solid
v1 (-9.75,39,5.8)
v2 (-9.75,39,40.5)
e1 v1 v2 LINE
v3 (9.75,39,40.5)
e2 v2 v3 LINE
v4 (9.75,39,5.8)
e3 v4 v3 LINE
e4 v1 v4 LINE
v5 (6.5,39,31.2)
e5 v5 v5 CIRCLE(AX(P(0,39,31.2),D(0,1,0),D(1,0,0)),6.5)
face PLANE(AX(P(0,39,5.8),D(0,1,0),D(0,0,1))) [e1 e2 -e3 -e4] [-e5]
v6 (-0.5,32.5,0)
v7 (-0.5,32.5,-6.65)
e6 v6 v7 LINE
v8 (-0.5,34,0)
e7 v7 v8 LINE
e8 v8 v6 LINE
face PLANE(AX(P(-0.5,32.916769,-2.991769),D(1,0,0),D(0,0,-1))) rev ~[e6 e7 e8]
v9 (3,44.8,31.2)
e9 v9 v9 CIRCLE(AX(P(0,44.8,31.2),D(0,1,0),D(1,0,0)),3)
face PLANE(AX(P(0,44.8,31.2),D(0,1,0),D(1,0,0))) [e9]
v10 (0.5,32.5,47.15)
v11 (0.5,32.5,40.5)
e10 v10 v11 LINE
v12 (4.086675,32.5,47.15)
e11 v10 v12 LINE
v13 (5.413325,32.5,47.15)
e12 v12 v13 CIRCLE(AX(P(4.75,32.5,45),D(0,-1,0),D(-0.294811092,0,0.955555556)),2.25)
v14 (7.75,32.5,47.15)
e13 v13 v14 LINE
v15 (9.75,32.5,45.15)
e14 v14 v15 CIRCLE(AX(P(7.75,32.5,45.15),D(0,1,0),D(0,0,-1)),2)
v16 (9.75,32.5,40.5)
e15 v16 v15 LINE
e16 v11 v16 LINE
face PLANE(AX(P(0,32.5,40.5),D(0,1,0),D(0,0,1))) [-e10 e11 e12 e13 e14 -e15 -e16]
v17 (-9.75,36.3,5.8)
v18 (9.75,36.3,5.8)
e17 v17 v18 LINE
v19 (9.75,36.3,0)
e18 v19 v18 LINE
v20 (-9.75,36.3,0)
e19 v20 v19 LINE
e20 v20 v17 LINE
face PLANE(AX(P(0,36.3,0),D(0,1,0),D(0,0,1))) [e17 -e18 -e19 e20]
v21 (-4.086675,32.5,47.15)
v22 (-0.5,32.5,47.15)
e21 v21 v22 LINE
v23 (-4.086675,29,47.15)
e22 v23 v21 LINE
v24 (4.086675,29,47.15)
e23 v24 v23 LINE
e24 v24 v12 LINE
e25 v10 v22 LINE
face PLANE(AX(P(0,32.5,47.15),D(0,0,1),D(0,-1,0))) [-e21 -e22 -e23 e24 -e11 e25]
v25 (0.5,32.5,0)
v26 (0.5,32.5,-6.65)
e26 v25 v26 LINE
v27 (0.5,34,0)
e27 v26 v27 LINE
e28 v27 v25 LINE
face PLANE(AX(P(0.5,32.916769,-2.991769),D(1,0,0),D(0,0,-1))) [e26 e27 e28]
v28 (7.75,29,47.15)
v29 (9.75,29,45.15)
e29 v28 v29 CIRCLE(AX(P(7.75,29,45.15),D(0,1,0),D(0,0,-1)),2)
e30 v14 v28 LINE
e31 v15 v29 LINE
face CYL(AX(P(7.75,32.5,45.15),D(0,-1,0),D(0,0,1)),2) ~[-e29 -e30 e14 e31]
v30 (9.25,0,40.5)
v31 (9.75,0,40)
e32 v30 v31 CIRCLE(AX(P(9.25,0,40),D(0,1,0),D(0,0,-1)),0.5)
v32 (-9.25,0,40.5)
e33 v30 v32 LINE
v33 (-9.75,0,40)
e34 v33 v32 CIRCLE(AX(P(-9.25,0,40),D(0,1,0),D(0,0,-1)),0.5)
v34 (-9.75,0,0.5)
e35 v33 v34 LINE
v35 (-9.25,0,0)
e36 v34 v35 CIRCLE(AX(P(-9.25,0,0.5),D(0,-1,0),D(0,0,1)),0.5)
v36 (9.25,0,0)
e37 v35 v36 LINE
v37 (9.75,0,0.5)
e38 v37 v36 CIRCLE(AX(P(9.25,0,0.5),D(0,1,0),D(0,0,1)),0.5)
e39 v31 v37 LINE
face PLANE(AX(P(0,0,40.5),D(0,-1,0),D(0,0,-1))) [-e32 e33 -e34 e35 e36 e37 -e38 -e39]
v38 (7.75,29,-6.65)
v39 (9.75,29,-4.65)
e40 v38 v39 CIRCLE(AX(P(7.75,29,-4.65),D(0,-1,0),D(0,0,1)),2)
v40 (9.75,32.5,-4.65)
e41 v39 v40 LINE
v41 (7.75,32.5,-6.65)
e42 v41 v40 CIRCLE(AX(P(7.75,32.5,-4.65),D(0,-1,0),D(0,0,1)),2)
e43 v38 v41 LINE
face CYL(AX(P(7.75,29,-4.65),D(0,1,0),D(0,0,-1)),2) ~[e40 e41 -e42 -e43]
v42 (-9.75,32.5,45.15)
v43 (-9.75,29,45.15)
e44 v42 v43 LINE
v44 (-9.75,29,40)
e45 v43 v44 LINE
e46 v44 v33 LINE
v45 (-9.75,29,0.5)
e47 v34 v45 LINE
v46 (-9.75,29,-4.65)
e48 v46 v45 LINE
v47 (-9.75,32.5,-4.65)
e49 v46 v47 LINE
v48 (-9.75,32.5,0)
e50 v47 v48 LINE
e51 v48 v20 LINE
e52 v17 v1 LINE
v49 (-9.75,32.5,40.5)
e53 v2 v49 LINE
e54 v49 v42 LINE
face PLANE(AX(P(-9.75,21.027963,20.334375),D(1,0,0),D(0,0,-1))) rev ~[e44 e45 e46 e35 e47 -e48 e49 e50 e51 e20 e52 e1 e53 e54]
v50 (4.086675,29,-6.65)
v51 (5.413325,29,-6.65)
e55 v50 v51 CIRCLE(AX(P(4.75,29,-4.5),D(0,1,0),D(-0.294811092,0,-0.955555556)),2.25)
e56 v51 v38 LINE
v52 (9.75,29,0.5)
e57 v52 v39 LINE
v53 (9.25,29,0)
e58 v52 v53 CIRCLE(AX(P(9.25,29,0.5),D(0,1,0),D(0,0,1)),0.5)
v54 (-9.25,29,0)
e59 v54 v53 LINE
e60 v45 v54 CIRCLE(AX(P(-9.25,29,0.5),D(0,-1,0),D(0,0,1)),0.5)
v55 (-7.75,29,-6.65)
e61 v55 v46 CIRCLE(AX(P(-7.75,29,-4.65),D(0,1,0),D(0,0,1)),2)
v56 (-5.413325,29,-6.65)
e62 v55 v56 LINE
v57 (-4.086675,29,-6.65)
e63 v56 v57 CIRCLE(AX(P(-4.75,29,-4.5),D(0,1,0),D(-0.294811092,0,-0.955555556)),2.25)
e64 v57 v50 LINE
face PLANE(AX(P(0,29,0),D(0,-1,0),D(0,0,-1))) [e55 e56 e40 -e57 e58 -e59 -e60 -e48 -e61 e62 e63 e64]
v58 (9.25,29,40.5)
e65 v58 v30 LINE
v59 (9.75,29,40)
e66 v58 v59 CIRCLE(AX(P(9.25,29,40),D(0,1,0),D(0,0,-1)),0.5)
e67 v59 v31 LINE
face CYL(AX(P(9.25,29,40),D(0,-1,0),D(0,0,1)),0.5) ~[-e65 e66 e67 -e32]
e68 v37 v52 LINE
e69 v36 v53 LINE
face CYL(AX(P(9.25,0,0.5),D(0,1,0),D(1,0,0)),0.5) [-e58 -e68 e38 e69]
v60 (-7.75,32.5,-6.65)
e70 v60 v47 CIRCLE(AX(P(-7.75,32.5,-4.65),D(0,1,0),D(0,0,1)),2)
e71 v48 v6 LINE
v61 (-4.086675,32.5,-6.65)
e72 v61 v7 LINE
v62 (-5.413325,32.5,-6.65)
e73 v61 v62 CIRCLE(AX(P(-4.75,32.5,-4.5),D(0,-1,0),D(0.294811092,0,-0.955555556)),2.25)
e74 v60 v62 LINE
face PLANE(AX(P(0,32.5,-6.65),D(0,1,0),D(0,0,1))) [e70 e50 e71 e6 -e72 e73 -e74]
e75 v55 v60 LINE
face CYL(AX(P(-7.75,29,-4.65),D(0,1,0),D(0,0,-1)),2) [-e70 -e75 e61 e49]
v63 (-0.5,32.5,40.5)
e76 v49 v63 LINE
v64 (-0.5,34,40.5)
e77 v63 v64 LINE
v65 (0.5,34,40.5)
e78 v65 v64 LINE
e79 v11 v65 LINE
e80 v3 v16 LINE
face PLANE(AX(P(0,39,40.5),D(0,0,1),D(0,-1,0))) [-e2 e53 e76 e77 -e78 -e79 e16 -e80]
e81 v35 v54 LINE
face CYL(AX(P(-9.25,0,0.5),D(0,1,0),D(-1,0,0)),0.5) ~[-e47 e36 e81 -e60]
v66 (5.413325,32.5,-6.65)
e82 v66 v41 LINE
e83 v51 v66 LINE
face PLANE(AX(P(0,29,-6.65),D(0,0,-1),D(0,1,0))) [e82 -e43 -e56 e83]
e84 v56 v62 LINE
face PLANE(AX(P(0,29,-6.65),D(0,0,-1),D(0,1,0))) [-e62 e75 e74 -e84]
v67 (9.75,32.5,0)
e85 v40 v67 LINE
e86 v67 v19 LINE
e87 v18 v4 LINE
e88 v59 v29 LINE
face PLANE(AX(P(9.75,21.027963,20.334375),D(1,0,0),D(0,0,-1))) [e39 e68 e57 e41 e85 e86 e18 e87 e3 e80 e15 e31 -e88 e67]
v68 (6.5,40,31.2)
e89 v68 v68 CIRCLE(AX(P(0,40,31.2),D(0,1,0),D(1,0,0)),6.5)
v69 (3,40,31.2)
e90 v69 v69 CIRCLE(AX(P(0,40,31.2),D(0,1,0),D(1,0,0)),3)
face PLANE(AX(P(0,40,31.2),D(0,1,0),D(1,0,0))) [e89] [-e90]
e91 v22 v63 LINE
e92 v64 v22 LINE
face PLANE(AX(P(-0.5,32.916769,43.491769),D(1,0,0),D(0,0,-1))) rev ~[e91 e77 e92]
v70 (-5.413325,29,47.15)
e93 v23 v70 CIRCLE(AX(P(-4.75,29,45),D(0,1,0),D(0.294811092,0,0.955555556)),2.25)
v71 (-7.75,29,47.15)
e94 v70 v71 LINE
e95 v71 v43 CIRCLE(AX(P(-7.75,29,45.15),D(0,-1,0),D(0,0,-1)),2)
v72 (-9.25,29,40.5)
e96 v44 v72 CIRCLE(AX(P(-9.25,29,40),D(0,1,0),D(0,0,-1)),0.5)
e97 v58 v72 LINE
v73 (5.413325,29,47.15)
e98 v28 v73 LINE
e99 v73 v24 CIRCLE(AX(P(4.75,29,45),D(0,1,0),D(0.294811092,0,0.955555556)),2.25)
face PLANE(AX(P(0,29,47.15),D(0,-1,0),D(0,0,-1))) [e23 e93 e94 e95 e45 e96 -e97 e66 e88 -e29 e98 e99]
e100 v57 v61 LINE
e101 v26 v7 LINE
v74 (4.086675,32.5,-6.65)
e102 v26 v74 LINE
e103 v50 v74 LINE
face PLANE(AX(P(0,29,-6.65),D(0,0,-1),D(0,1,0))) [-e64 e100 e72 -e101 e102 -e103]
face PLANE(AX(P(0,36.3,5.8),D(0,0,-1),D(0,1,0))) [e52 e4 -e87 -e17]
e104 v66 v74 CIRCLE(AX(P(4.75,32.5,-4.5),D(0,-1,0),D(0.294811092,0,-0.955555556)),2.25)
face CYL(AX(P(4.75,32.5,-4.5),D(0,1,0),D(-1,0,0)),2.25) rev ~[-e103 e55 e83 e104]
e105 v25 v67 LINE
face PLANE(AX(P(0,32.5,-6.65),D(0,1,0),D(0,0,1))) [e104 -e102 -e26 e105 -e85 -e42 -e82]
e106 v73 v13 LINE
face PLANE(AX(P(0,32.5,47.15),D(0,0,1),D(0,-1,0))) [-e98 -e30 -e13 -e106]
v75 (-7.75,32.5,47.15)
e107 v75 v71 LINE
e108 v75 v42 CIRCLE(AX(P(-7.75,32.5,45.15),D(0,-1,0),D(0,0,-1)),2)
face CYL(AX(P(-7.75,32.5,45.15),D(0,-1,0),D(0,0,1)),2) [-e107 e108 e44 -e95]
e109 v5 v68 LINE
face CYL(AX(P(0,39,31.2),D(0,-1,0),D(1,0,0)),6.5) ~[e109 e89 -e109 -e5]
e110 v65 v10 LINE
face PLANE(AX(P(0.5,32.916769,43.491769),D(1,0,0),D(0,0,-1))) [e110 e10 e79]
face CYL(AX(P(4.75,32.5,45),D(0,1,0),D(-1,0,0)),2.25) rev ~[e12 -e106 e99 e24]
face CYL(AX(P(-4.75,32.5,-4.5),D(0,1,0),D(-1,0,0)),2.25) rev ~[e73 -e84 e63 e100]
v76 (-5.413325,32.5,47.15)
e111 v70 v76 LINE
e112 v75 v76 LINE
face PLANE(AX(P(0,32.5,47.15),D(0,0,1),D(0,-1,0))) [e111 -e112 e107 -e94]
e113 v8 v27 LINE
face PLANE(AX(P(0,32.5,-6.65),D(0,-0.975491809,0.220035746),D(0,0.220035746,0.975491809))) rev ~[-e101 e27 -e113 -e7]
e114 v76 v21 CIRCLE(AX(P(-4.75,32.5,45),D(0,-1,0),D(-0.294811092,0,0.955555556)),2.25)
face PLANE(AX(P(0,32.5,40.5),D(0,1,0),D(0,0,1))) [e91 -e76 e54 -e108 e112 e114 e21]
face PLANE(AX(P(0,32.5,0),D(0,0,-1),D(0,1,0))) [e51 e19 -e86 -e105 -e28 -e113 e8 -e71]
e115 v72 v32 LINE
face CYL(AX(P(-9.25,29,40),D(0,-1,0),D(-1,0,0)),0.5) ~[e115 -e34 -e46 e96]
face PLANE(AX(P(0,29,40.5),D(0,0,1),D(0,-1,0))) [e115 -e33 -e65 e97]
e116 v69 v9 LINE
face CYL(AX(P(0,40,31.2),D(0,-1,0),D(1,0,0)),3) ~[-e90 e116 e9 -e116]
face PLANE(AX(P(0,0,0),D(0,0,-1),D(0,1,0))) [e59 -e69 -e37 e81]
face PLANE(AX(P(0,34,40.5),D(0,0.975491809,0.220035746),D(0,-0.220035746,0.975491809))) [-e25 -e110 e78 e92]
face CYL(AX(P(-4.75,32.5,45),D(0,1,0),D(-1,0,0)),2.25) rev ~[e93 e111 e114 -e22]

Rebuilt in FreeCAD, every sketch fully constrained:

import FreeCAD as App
import Part
import Sketcher
from FreeCAD import Vector
Q = App.Units.Quantity


def edges_at(feature, points):
    """Names of the edges that pass closest to the given points."""
    edges = feature.Shape.Edges
    near = lambda p: min(range(len(edges)), key=lambda i: edges[i].distToShape(Part.Vertex(*p))[0])
    return sorted({f"Edge{near(p) + 1}" for p in points})

doc = App.newDocument("Part")
body = doc.addObject("PartDesign::Body", "Body")

# Sketch on YZ plane
sketch1 = doc.addObject("Sketcher::SketchObject", "Sketch")
body.addObject(sketch1)
sketch1.AttachmentSupport = (doc.YZ_Plane, [""])
sketch1.MapMode = "FlatFace"
sketch1.addGeometry([
    Part.LineSegment(Vector(0, 40.5, 0), Vector(0, 0, 0)),  # 0
    Part.LineSegment(Vector(0, 0, 0), Vector(29, 0, 0)),  # 1
    Part.LineSegment(Vector(29, 0, 0), Vector(29, -6.7, 0)),  # 2
    Part.LineSegment(Vector(29, -6.7, 0), Vector(32.5, -6.7, 0)),  # 3
    Part.LineSegment(Vector(32.5, -6.7, 0), Vector(32.5, 0, 0)),  # 4
    Part.LineSegment(Vector(32.5, 0, 0), Vector(36.3, 0, 0)),  # 5
    Part.LineSegment(Vector(36.3, 0, 0), Vector(36.3, 5.8, 0)),  # 6
    Part.LineSegment(Vector(36.3, 5.8, 0), Vector(39, 5.8, 0)),  # 7
    Part.LineSegment(Vector(39, 5.8, 0), Vector(39, 40.5, 0)),  # 8
    Part.LineSegment(Vector(39, 40.5, 0), Vector(32.5, 40.5, 0)),  # 9
    Part.LineSegment(Vector(32.5, 40.5, 0), Vector(32.5, 47.1, 0)),  # 10
    Part.LineSegment(Vector(32.5, 47.1, 0), Vector(29, 47.1, 0)),  # 11
    Part.LineSegment(Vector(29, 47.1, 0), Vector(29, 40.5, 0)),  # 12
    Part.LineSegment(Vector(29, 40.5, 0), Vector(0, 40.5, 0)),  # 13
], False)
sketch1.addConstraint([
    Sketcher.Constraint("Coincident", 0, 2, 1, 1),
    Sketcher.Constraint("Coincident", 1, 2, 2, 1),
    Sketcher.Constraint("Coincident", 2, 2, 3, 1),
    Sketcher.Constraint("Coincident", 3, 2, 4, 1),
    Sketcher.Constraint("Coincident", 4, 2, 5, 1),
    Sketcher.Constraint("Coincident", 5, 2, 6, 1),
    Sketcher.Constraint("Coincident", 6, 2, 7, 1),
    Sketcher.Constraint("Coincident", 7, 2, 8, 1),
    Sketcher.Constraint("Coincident", 8, 2, 9, 1),
    Sketcher.Constraint("Coincident", 9, 2, 10, 1),
    Sketcher.Constraint("Coincident", 10, 2, 11, 1),
    Sketcher.Constraint("Coincident", 11, 2, 12, 1),
    Sketcher.Constraint("Coincident", 12, 2, 13, 1),
    Sketcher.Constraint("Coincident", 13, 2, 0, 1),
    Sketcher.Constraint("Vertical", 0),
    Sketcher.Constraint("Horizontal", 1),
    Sketcher.Constraint("Vertical", 2),
    Sketcher.Constraint("Horizontal", 3),
    Sketcher.Constraint("Vertical", 4),
    Sketcher.Constraint("Horizontal", 5),
    Sketcher.Constraint("Vertical", 6),
    Sketcher.Constraint("Horizontal", 7),
    Sketcher.Constraint("Vertical", 8),
    Sketcher.Constraint("Horizontal", 9),
    Sketcher.Constraint("Vertical", 10),
    Sketcher.Constraint("Horizontal", 11),
    Sketcher.Constraint("Vertical", 12),
    Sketcher.Constraint("Horizontal", 13),
    Sketcher.Constraint("Coincident", 0, 2, -1, 1),
    Sketcher.Constraint("PointOnObject", 4, 2, -1),
    Sketcher.Constraint("Horizontal", 9, 2, 12, 2),
    Sketcher.Constraint("Vertical", 4, 2, 9, 2),
    Sketcher.Constraint("Vertical", 2, 2, 11, 2),
    Sketcher.Constraint("Equal", 4, 10),
    Sketcher.Constraint("DistanceX", 1, 1, 1, 2, Q("29 mm")),
    Sketcher.Constraint("DistanceX", 3, 1, 3, 2, Q("3.5 mm")),
    Sketcher.Constraint("DistanceX", 5, 1, 5, 2, Q("3.8 mm")),
    Sketcher.Constraint("DistanceX", 7, 1, 7, 2, Q("2.7 mm")),
    Sketcher.Constraint("DistanceY", 0, 2, 0, 1, Q("40.5 mm")),
    Sketcher.Constraint("DistanceY", 6, 1, 6, 2, Q("5.8 mm")),
    Sketcher.Constraint("DistanceY", 2, 2, 2, 1, Q("6.65 mm")),
])
pad1 = doc.addObject("PartDesign::Pad", "Pad")
body.addObject(pad1)
pad1.Profile = sketch1
pad1.Length = 19.5
pad1.Midplane = True

# Sketch on XZ plane
sketch2 = doc.addObject("Sketcher::SketchObject", "Sketch001")
body.addObject(sketch2)
sketch2.AttachmentSupport = (doc.XZ_Plane, [""])
sketch2.MapMode = "FlatFace"
sketch2.AttachmentOffset = App.Placement(Vector(0, 0, -39), App.Rotation())
sketch2.addGeometry(Part.Circle(Vector(0, 31, 0), Vector(0, 0, 1), 6), False)
sketch2.addConstraint([
    Sketcher.Constraint("PointOnObject", 0, 3, -2),
    Sketcher.Constraint("Diameter", 0, Q("13 mm")),
    Sketcher.Constraint("DistanceY", -1, 1, 0, 3, Q("31.2 mm")),
])
pad2 = doc.addObject("PartDesign::Pad", "Pad001")
body.addObject(pad2)
pad2.Profile = sketch2
pad2.Length = 1
pad2.Reversed = True

# Sketch on XZ plane
sketch3 = doc.addObject("Sketcher::SketchObject", "Sketch002")
body.addObject(sketch3)
sketch3.AttachmentSupport = (doc.XZ_Plane, [""])
sketch3.MapMode = "FlatFace"
sketch3.AttachmentOffset = App.Placement(Vector(0, 0, -40), App.Rotation())
sketch3.addGeometry(Part.Circle(Vector(0, 31.2, 0), Vector(0, 0, 1), 3), False)
sketch3.addConstraint([
    Sketcher.Constraint("PointOnObject", 0, 3, -2),
    Sketcher.Constraint("Diameter", 0, Q("6 mm")),
    Sketcher.Constraint("DistanceY", -1, 1, 0, 3, Q("31.2 mm")),
])
pad3 = doc.addObject("PartDesign::Pad", "Pad002")
body.addObject(pad3)
pad3.Profile = sketch3
pad3.Length = 4.8
pad3.Reversed = True

# Sketch on XZ plane
sketch4 = doc.addObject("Sketcher::SketchObject", "Sketch003")
body.addObject(sketch4)
sketch4.AttachmentSupport = (doc.XZ_Plane, [""])
sketch4.MapMode = "FlatFace"
sketch4.AttachmentOffset = App.Placement(Vector(0, 0, -32.5), App.Rotation())
sketch4.addGeometry([
    Part.Circle(Vector(4.8, 45, 0), Vector(0, 0, 1), 2.2),
    Part.Circle(Vector(-4.8, 45, 0), Vector(0, 0, 1), 2.2),
    Part.Circle(Vector(-4.8, -4.5, 0), Vector(0, 0, 1), 2.2),
    Part.Circle(Vector(4.8, -4.5, 0), Vector(0, 0, 1), 2.2),
], False)
sketch4.addConstraint([
    Sketcher.Constraint("Equal", 0, 1),
    Sketcher.Constraint("Equal", 1, 2),
    Sketcher.Constraint("Equal", 2, 3),
    Sketcher.Constraint("Symmetric", 0, 3, 1, 3, -2),
    Sketcher.Constraint("Symmetric", 2, 3, 3, 3, -2),
    Sketcher.Constraint("Vertical", 1, 3, 2, 3),
    Sketcher.Constraint("Diameter", 0, Q("4.5 mm")),
    Sketcher.Constraint("DistanceY", -1, 1, 0, 3, Q("45 mm")),
    Sketcher.Constraint("DistanceY", 2, 3, -1, 1, Q("4.5 mm")),
    Sketcher.Constraint("DistanceX", 1, 3, 0, 3, Q("9.5 mm")),
])
pocket1 = doc.addObject("PartDesign::Pocket", "Pocket")
body.addObject(pocket1)
pocket1.Profile = sketch4
pocket1.Length = 19.05
pocket1.Reversed = True
doc.recompute()

fillet = doc.addObject("PartDesign::Fillet", "Fillet")
body.addObject(fillet)
fillet.Base = (pocket1, edges_at(pocket1, [
    (-9.75, 30.75, 47.15),
    (9.75, 30.75, -6.65),
    (-9.75, 30.75, -6.65),
    (9.75, 30.75, 47.15),
]))
fillet.Radius = 2

# Sketch on YZ plane
sketch5 = doc.addObject("Sketcher::SketchObject", "Sketch004")
body.addObject(sketch5)
sketch5.AttachmentSupport = (doc.YZ_Plane, [""])
sketch5.MapMode = "FlatFace"
sketch5.addGeometry([
    Part.LineSegment(Vector(32.5, -6.7, 0), Vector(34, 0, 0)),  # 0
    Part.LineSegment(Vector(34, 0, 0), Vector(32.5, 0, 0)),  # 1
    Part.LineSegment(Vector(32.5, 0, 0), Vector(32.5, -6.7, 0)),  # 2
    Part.LineSegment(Vector(32.5, 47.1, 0), Vector(32.5, 40.5, 0)),  # 3
    Part.LineSegment(Vector(32.5, 40.5, 0), Vector(34, 40.5, 0)),  # 4
    Part.LineSegment(Vector(34, 40.5, 0), Vector(32.5, 47.1, 0)),  # 5
], False)
sketch5.addConstraint([
    Sketcher.Constraint("Coincident", 0, 2, 1, 1),
    Sketcher.Constraint("Coincident", 1, 2, 2, 1),
    Sketcher.Constraint("Coincident", 2, 2, 0, 1),
    Sketcher.Constraint("Coincident", 3, 2, 4, 1),
    Sketcher.Constraint("Coincident", 4, 2, 5, 1),
    Sketcher.Constraint("Coincident", 5, 2, 3, 1),
    Sketcher.Constraint("Horizontal", 1),
    Sketcher.Constraint("Vertical", 2),
    Sketcher.Constraint("Vertical", 3),
    Sketcher.Constraint("Horizontal", 4),
    Sketcher.Constraint("PointOnObject", 0, 2, -1),
    Sketcher.Constraint("Vertical", 2, 2, 3, 2),
    Sketcher.Constraint("Vertical", 0, 2, 4, 2),
    Sketcher.Constraint("Equal", 2, 3),
    Sketcher.Constraint("DistanceX", 1, 2, 1, 1, Q("1.5 mm")),
    Sketcher.Constraint("DistanceX", -1, 1, 0, 2, Q("34 mm")),
    Sketcher.Constraint("DistanceY", 2, 2, 2, 1, Q("6.65 mm")),
    Sketcher.Constraint("DistanceY", -1, 1, 3, 2, Q("40.5 mm")),
])
pad4 = doc.addObject("PartDesign::Pad", "Pad003")
body.addObject(pad4)
pad4.Profile = sketch5
pad4.Length = 1
pad4.Midplane = True
doc.recompute()

fillet2 = doc.addObject("PartDesign::Fillet", "Fillet001")
body.addObject(fillet2)
fillet2.Base = (pad4, edges_at(pad4, [
    (9.75, 14.5, 0),
    (-9.75, 14.5, 0),
    (-9.75, 14.5, 40.5),
    (9.75, 14.5, 40.5),
]))
fillet2.Radius = 0.5

doc.recompute()
